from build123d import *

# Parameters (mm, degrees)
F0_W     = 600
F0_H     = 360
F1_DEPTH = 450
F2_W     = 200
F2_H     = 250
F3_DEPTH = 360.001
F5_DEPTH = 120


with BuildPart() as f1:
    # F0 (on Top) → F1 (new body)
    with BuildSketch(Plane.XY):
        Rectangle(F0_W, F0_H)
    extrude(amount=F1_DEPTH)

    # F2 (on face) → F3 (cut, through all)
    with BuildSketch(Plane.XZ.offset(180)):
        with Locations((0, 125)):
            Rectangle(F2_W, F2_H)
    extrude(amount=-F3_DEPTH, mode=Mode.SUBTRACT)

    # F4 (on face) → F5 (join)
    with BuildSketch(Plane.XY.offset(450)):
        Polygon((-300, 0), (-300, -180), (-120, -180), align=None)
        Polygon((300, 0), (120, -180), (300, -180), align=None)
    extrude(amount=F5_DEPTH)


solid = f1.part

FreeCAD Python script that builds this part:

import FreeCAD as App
import Part
import Sketcher
from FreeCAD import Vector
Q = App.Units.Quantity


def add_polygon(sketch, points):
    """Adds a closed chain of lines whose ends are joined by coincident constraints."""
    first, n = sketch.GeometryCount, len(points)
    for a, b in zip(points, points[1:] + points[:1]):
        sketch.addGeometry(Part.LineSegment(App.Vector(*a, 0), App.Vector(*b, 0)), False)
    for i in range(n):
        sketch.addConstraint(Sketcher.Constraint("Coincident", first + i, 2, first + (i + 1) % n, 1))

doc = App.newDocument("Part")
body = doc.addObject("PartDesign::Body", "Body")

sketch1 = doc.addObject("Sketcher::SketchObject", "Sketch")
body.addObject(sketch1)
sketch1.AttachmentSupport = (doc.XY_Plane, [""])
sketch1.MapMode = "FlatFace"
add_polygon(sketch1, [(-300, 180), (-300, -180), (300, -180), (300, 180)])
sketch1.addConstraint(Sketcher.Constraint("Vertical", 0))
sketch1.addConstraint(Sketcher.Constraint("Horizontal", 1))
sketch1.addConstraint(Sketcher.Constraint("Vertical", 2))
sketch1.addConstraint(Sketcher.Constraint("Horizontal", 3))
sketch1.addConstraint(Sketcher.Constraint("Symmetric", 0, 2, 2, 2, -1, 1))
sketch1.addConstraint(Sketcher.Constraint("DistanceX", 1, 1, 1, 2, Q("600 mm")))
sketch1.addConstraint(Sketcher.Constraint("DistanceY", 0, 2, 0, 1, Q("360 mm")))
pad1 = doc.addObject("PartDesign::Pad", "Pad")
body.addObject(pad1)
pad1.Profile = sketch1
pad1.Length = 450

sketch2 = doc.addObject("Sketcher::SketchObject", "Sketch001")
body.addObject(sketch2)
sketch2.AttachmentSupport = (doc.XZ_Plane, [""])
sketch2.MapMode = "FlatFace"
sketch2.AttachmentOffset = App.Placement(Vector(0, 0, 180), App.Rotation())
add_polygon(sketch2, [(-100, 250), (-100, 0), (100, 0), (100, 250)])
sketch2.addConstraint(Sketcher.Constraint("Vertical", 0))
sketch2.addConstraint(Sketcher.Constraint("Horizontal", 1))
sketch2.addConstraint(Sketcher.Constraint("Vertical", 2))
sketch2.addConstraint(Sketcher.Constraint("Horizontal", 3))
sketch2.addConstraint(Sketcher.Constraint("Symmetric", 0, 2, 1, 2, -1, 1))
sketch2.addConstraint(Sketcher.Constraint("DistanceX", 1, 1, 1, 2, Q("200 mm")))
sketch2.addConstraint(Sketcher.Constraint("DistanceY", 0, 2, 0, 1, Q("250 mm")))
pocket1 = doc.addObject("PartDesign::Pocket", "Pocket")
body.addObject(pocket1)
pocket1.Profile = sketch2
pocket1.Type = "ThroughAll"

sketch3 = doc.addObject("Sketcher::SketchObject", "Sketch002")
body.addObject(sketch3)
sketch3.AttachmentSupport = (doc.XY_Plane, [""])
sketch3.MapMode = "FlatFace"
sketch3.AttachmentOffset = App.Placement(Vector(0, 0, 450), App.Rotation())
add_polygon(sketch3, [(-300, 0), (-300, -180), (-120, -180)])
add_polygon(sketch3, [(300, 0), (120, -180), (300, -180)])
sketch3.addConstraint(Sketcher.Constraint("Vertical", 0))
sketch3.addConstraint(Sketcher.Constraint("Horizontal", 1))
sketch3.addConstraint(Sketcher.Constraint("Horizontal", 4))
sketch3.addConstraint(Sketcher.Constraint("Vertical", 5))
sketch3.addConstraint(Sketcher.Constraint("Symmetric", 2, 2, 5, 2, -1, 1))
sketch3.addConstraint(Sketcher.Constraint("Symmetric", 1, 2, 3, 2, -2))
sketch3.addConstraint(Sketcher.Constraint("PointOnObject", 2, 2, -1))
sketch3.addConstraint(Sketcher.Constraint("Perpendicular", 2, 3))
sketch3.addConstraint(Sketcher.Constraint("DistanceX", 1, 1, 1, 2, Q("180 mm")))
sketch3.addConstraint(Sketcher.Constraint("DistanceX", 0, 2, -1, 1, Q("300 mm")))
pad2 = doc.addObject("PartDesign::Pad", "Pad001")
body.addObject(pad2)
pad2.Profile = sketch3
pad2.Length = 120

doc.recompute()
